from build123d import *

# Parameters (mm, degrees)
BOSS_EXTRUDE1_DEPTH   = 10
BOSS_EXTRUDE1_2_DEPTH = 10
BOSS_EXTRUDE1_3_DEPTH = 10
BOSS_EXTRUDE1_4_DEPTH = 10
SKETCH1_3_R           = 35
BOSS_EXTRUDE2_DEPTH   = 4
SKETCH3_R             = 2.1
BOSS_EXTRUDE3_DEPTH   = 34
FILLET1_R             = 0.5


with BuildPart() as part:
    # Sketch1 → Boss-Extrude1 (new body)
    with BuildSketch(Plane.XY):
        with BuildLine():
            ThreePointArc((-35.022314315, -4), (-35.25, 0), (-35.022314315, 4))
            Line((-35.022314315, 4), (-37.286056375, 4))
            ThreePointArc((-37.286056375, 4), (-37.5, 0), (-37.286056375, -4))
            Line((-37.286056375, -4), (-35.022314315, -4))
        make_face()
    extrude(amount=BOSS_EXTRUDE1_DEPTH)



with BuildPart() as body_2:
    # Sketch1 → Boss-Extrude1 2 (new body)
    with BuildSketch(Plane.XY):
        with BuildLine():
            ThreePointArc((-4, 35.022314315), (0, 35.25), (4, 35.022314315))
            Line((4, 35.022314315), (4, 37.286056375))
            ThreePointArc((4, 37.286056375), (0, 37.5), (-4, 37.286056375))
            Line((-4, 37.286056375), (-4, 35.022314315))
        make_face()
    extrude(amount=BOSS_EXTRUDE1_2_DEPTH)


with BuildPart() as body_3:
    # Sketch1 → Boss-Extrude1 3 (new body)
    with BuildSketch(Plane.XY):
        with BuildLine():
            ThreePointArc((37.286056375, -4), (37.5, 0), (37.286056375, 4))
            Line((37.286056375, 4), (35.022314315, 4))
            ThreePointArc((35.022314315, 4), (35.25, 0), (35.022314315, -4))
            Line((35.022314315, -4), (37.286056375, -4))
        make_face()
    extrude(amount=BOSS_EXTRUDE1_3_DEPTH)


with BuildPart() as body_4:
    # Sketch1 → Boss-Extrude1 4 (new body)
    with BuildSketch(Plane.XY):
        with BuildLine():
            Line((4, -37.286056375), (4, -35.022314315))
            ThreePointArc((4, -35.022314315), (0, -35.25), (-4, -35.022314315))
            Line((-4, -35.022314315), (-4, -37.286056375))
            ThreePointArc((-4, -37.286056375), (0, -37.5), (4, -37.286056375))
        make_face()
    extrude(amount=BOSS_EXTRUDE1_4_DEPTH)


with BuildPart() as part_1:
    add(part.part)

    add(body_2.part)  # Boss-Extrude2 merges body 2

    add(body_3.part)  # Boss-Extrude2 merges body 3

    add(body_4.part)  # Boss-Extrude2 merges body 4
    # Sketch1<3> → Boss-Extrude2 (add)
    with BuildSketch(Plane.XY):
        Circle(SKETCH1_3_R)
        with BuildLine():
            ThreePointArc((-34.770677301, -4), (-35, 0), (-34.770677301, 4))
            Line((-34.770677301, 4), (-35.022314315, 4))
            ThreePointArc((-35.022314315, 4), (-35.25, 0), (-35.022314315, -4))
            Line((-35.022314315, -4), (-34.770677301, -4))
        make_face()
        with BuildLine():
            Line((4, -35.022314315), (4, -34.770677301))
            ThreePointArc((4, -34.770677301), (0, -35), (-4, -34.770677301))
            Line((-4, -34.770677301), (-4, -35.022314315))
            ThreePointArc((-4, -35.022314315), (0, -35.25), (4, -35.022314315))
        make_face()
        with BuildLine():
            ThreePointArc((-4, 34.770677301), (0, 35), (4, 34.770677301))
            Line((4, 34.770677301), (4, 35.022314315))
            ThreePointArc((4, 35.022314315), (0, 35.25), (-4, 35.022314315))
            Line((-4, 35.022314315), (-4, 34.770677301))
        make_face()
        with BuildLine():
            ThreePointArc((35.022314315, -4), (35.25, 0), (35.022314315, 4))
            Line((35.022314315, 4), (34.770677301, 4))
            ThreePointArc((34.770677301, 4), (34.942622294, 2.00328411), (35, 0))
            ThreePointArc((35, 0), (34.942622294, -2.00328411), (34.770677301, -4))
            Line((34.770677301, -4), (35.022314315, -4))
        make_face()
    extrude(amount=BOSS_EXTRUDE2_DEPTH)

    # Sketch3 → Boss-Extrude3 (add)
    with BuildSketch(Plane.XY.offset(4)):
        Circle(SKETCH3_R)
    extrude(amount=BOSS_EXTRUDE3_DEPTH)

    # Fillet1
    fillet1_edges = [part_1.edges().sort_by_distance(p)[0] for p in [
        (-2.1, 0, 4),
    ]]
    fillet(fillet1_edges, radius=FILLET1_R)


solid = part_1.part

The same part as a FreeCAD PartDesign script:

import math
import FreeCAD as App
import Part
import Sketcher
Q = App.Units.Quantity


def edges_at(feature, points):
    """Names of the edges that pass closest to the given points."""
    edges = feature.Shape.Edges
    near = lambda p: min(range(len(edges)), key=lambda i: edges[i].distToShape(Part.Vertex(*p))[0])
    return sorted({f"Edge{near(p) + 1}" for p in points})

doc = App.newDocument("Part")
body = doc.addObject("PartDesign::Body", "Body")

# Sketch on XY plane
sketch1 = doc.addObject("Sketcher::SketchObject", "Sketch")
body.addObject(sketch1)
sketch1.AttachmentSupport = (doc.XY_Plane, [""])
sketch1.MapMode = "FlatFace"
sketch1.addGeometry(Part.ArcOfCircle(Part.Circle(App.Vector(0, 0, 0), App.Vector(0, 0, 1), 35.2), math.radians(173.48), math.radians(186.52)), False)
sketch1.addGeometry(Part.LineSegment(App.Vector(-35, 4, 0), App.Vector(-37.3, 4, 0)), False)
sketch1.addGeometry(Part.ArcOfCircle(Part.Circle(App.Vector(0, 0, 0), App.Vector(0, 0, 1), 37.5), math.radians(173.88), math.radians(186.12)), False)
sketch1.addGeometry(Part.LineSegment(App.Vector(-37.3, -4, 0), App.Vector(-35, -4, 0)), False)
sketch1.addConstraint(Sketcher.Constraint("Coincident", 0, 1, 1, 1))
sketch1.addConstraint(Sketcher.Constraint("Coincident", 1, 2, 2, 1))
sketch1.addConstraint(Sketcher.Constraint("Coincident", 2, 2, 3, 1))
sketch1.addConstraint(Sketcher.Constraint("Coincident", 3, 2, 0, 2))
sketch1.addConstraint(Sketcher.Constraint("Horizontal", 1))
sketch1.addConstraint(Sketcher.Constraint("Horizontal", 3))
sketch1.addConstraint(Sketcher.Constraint("Coincident", 0, 3, -1, 1))
sketch1.addConstraint(Sketcher.Constraint("Coincident", 2, 3, -1, 1))
sketch1.addConstraint(Sketcher.Constraint("Vertical", 1, 2, 2, 2))
sketch1.addConstraint(Sketcher.Constraint("Radius", 2, Q("37.5 mm")))
sketch1.addConstraint(Sketcher.Constraint("Radius", 0, Q("35.25 mm")))
sketch1.addConstraint(Sketcher.Constraint("DistanceY", -1, 1, 0, 1, Q("4 mm")))
pad1 = doc.addObject("PartDesign::Pad", "Pad")
body.addObject(pad1)
pad1.Profile = sketch1
pad1.Length = 10
body2 = doc.addObject("PartDesign::Body", "Body001")

# Sketch on XY plane
sketch2 = doc.addObject("Sketcher::SketchObject", "Sketch001")
body2.addObject(sketch2)
sketch2.AttachmentSupport = (doc.getObject("XY_Plane001"), [""])
sketch2.MapMode = "FlatFace"
sketch2.addGeometry(Part.ArcOfCircle(Part.Circle(App.Vector(0, 0, 0), App.Vector(0, 0, 1), 35.2), math.radians(83.48), math.radians(96.52)), False)
sketch2.addGeometry(Part.LineSegment(App.Vector(4, 35, 0), App.Vector(4, 37.3, 0)), False)
sketch2.addGeometry(Part.ArcOfCircle(Part.Circle(App.Vector(0, 0, 0), App.Vector(0, 0, 1), 37.5), math.radians(83.88), math.radians(96.12)), False)
sketch2.addGeometry(Part.LineSegment(App.Vector(-4, 37.3, 0), App.Vector(-4, 35, 0)), False)
sketch2.addConstraint(Sketcher.Constraint("Coincident", 0, 1, 1, 1))
sketch2.addConstraint(Sketcher.Constraint("Coincident", 1, 2, 2, 1))
sketch2.addConstraint(Sketcher.Constraint("Coincident", 2, 2, 3, 1))
sketch2.addConstraint(Sketcher.Constraint("Coincident", 3, 2, 0, 2))
sketch2.addConstraint(Sketcher.Constraint("Vertical", 1))
sketch2.addConstraint(Sketcher.Constraint("Vertical", 3))
sketch2.addConstraint(Sketcher.Constraint("Coincident", 0, 3, -1, 1))
sketch2.addConstraint(Sketcher.Constraint("Coincident", 2, 3, -1, 1))
sketch2.addConstraint(Sketcher.Constraint("Horizontal", 1, 2, 2, 2))
sketch2.addConstraint(Sketcher.Constraint("Radius", 2, Q("37.5 mm")))
sketch2.addConstraint(Sketcher.Constraint("Radius", 0, Q("35.25 mm")))
sketch2.addConstraint(Sketcher.Constraint("DistanceX", -1, 1, 0, 1, Q("4 mm")))
pad2 = doc.addObject("PartDesign::Pad", "Pad001")
body2.addObject(pad2)
pad2.Profile = sketch2
pad2.Length = 10
body3 = doc.addObject("PartDesign::Body", "Body002")

# Sketch on XY plane
sketch3 = doc.addObject("Sketcher::SketchObject", "Sketch002")
body3.addObject(sketch3)
sketch3.AttachmentSupport = (doc.getObject("XY_Plane002"), [""])
sketch3.MapMode = "FlatFace"
sketch3.addGeometry(Part.ArcOfCircle(Part.Circle(App.Vector(0, 0, 0), App.Vector(0, 0, 1), 37.5), math.radians(-6.12), math.radians(6.12)), False)
sketch3.addGeometry(Part.LineSegment(App.Vector(37.3, 4, 0), App.Vector(35, 4, 0)), False)
sketch3.addGeometry(Part.ArcOfCircle(Part.Circle(App.Vector(0, 0, 0), App.Vector(0, 0, 1), 35.2), math.radians(-6.52), math.radians(6.52)), False)
sketch3.addGeometry(Part.LineSegment(App.Vector(35, -4, 0), App.Vector(37.3, -4, 0)), False)
sketch3.addConstraint(Sketcher.Constraint("Coincident", 0, 2, 1, 1))
sketch3.addConstraint(Sketcher.Constraint("Coincident", 1, 2, 2, 2))
sketch3.addConstraint(Sketcher.Constraint("Coincident", 2, 1, 3, 1))
sketch3.addConstraint(Sketcher.Constraint("Coincident", 3, 2, 0, 1))
sketch3.addConstraint(Sketcher.Constraint("Horizontal", 1))
sketch3.addConstraint(Sketcher.Constraint("Horizontal", 3))
sketch3.addConstraint(Sketcher.Constraint("Coincident", 0, 3, -1, 1))
sketch3.addConstraint(Sketcher.Constraint("Coincident", 2, 3, -1, 1))
sketch3.addConstraint(Sketcher.Constraint("Vertical", 1, 2, 2, 1))
sketch3.addConstraint(Sketcher.Constraint("Radius", 0, Q("37.5 mm")))
sketch3.addConstraint(Sketcher.Constraint("Radius", 2, Q("35.25 mm")))
sketch3.addConstraint(Sketcher.Constraint("DistanceY", -1, 1, 0, 2, Q("4 mm")))
pad3 = doc.addObject("PartDesign::Pad", "Pad002")
body3.addObject(pad3)
pad3.Profile = sketch3
pad3.Length = 10
body4 = doc.addObject("PartDesign::Body", "Body003")

# Sketch on XY plane
sketch4 = doc.addObject("Sketcher::SketchObject", "Sketch003")
body4.addObject(sketch4)
sketch4.AttachmentSupport = (doc.getObject("XY_Plane003"), [""])
sketch4.MapMode = "FlatFace"
sketch4.addGeometry(Part.LineSegment(App.Vector(4, -37.3, 0), App.Vector(4, -35, 0)), False)
sketch4.addGeometry(Part.ArcOfCircle(Part.Circle(App.Vector(0, 0, 0), App.Vector(0, 0, 1), 35.2), math.radians(-96.52), math.radians(-83.48)), False)
sketch4.addGeometry(Part.LineSegment(App.Vector(-4, -35, 0), App.Vector(-4, -37.3, 0)), False)
sketch4.addGeometry(Part.ArcOfCircle(Part.Circle(App.Vector(0, 0, 0), App.Vector(0, 0, 1), 37.5), math.radians(-96.12), math.radians(-83.88)), False)
sketch4.addConstraint(Sketcher.Constraint("Coincident", 0, 2, 1, 2))
sketch4.addConstraint(Sketcher.Constraint("Coincident", 1, 1, 2, 1))
sketch4.addConstraint(Sketcher.Constraint("Coincident", 2, 2, 3, 1))
sketch4.addConstraint(Sketcher.Constraint("Coincident", 3, 2, 0, 1))
sketch4.addConstraint(Sketcher.Constraint("Vertical", 0))
sketch4.addConstraint(Sketcher.Constraint("Vertical", 2))
sketch4.addConstraint(Sketcher.Constraint("Coincident", 1, 3, -1, 1))
sketch4.addConstraint(Sketcher.Constraint("Coincident", 3, 3, -1, 1))
sketch4.addConstraint(Sketcher.Constraint("Horizontal", 0, 2, 1, 1))
sketch4.addConstraint(Sketcher.Constraint("Radius", 3, Q("37.5 mm")))
sketch4.addConstraint(Sketcher.Constraint("Radius", 1, Q("35.25 mm")))
sketch4.addConstraint(Sketcher.Constraint("DistanceX", -1, 1, 0, 2, Q("4 mm")))
pad4 = doc.addObject("PartDesign::Pad", "Pad003")
body4.addObject(pad4)
pad4.Profile = sketch4
pad4.Length = 10
body.AllowCompound = True
doc.recompute()

boolean = doc.addObject("PartDesign::Boolean", "Boolean")
body.addObject(boolean)
boolean.Type = "Fuse"
boolean.addObjects([body2])
doc.recompute()

boolean2 = doc.addObject("PartDesign::Boolean", "Boolean001")
body.addObject(boolean2)
boolean2.Type = "Fuse"
boolean2.addObjects([body3])
doc.recompute()

boolean3 = doc.addObject("PartDesign::Boolean", "Boolean002")
body.addObject(boolean3)
boolean3.Type = "Fuse"
boolean3.addObjects([body4])

# Sketch on XY plane
sketch5 = doc.addObject("Sketcher::SketchObject", "Sketch004")
body.addObject(sketch5)
sketch5.AttachmentSupport = (doc.XY_Plane, [""])
sketch5.MapMode = "FlatFace"
sketch5.addGeometry(Part.LineSegment(App.Vector(-34.77, 4, 0), App.Vector(-35.02, 4, 0)), False)
sketch5.addGeometry(Part.ArcOfCircle(Part.Circle(App.Vector(0, 0, 0), App.Vector(0, 0, 1), 35.25), math.radians(173.48), math.radians(186.52)), False)
sketch5.addGeometry(Part.LineSegment(App.Vector(-35.02, -4, 0), App.Vector(-34.77, -4, 0)), False)
sketch5.addGeometry(Part.ArcOfCircle(Part.Circle(App.Vector(0, 0, 0), App.Vector(0, 0, 1), 35), math.radians(-173), math.radians(-97)), False)
sketch5.addGeometry(Part.LineSegment(App.Vector(-4, -34.77, 0), App.Vector(-4, -35.02, 0)), False)
sketch5.addGeometry(Part.ArcOfCircle(Part.Circle(App.Vector(0, 0, 0), App.Vector(0, 0, 1), 35.25), math.radians(-96.52), math.radians(-83.48)), False)
sketch5.addGeometry(Part.LineSegment(App.Vector(4, -35.02, 0), App.Vector(4, -34.77, 0)), False)
sketch5.addGeometry(Part.ArcOfCircle(Part.Circle(App.Vector(0, 0, 0), App.Vector(0, 0, 1), 35), math.radians(-83), math.radians(-7)), False)
sketch5.addGeometry(Part.LineSegment(App.Vector(34.77, -4, 0), App.Vector(35.02, -4, 0)), False)
sketch5.addGeometry(Part.ArcOfCircle(Part.Circle(App.Vector(0, 0, 0), App.Vector(0, 0, 1), 35.25), math.radians(-6.52), math.radians(6.52)), False)
sketch5.addGeometry(Part.LineSegment(App.Vector(35.02, 4, 0), App.Vector(34.77, 4, 0)), False)
sketch5.addGeometry(Part.ArcOfCircle(Part.Circle(App.Vector(0, 0, 0), App.Vector(0, 0, 1), 35), math.radians(7), math.radians(83)), False)
sketch5.addGeometry(Part.LineSegment(App.Vector(4, 34.77, 0), App.Vector(4, 35.02, 0)), False)
sketch5.addGeometry(Part.ArcOfCircle(Part.Circle(App.Vector(0, 0, 0), App.Vector(0, 0, 1), 35.25), math.radians(83.48), math.radians(96.52)), False)
sketch5.addGeometry(Part.LineSegment(App.Vector(-4, 35.02, 0), App.Vector(-4, 34.77, 0)), False)
sketch5.addGeometry(Part.ArcOfCircle(Part.Circle(App.Vector(0, 0, 0), App.Vector(0, 0, 1), 35), math.radians(97), math.radians(173)), False)
sketch5.addConstraint(Sketcher.Constraint("Coincident", 0, 2, 1, 1))
sketch5.addConstraint(Sketcher.Constraint("Coincident", 1, 2, 2, 1))
sketch5.addConstraint(Sketcher.Constraint("Coincident", 2, 2, 3, 1))
sketch5.addConstraint(Sketcher.Constraint("Coincident", 3, 2, 4, 1))
sketch5.addConstraint(Sketcher.Constraint("Coincident", 4, 2, 5, 1))
sketch5.addConstraint(Sketcher.Constraint("Coincident", 5, 2, 6, 1))
sketch5.addConstraint(Sketcher.Constraint("Coincident", 6, 2, 7, 1))
sketch5.addConstraint(Sketcher.Constraint("Coincident", 7, 2, 8, 1))
sketch5.addConstraint(Sketcher.Constraint("Coincident", 8, 2, 9, 1))
sketch5.addConstraint(Sketcher.Constraint("Coincident", 9, 2, 10, 1))
sketch5.addConstraint(Sketcher.Constraint("Coincident", 10, 2, 11, 1))
sketch5.addConstraint(Sketcher.Constraint("Coincident", 11, 2, 12, 1))
sketch5.addConstraint(Sketcher.Constraint("Coincident", 12, 2, 13, 1))
sketch5.addConstraint(Sketcher.Constraint("Coincident", 13, 2, 14, 1))
sketch5.addConstraint(Sketcher.Constraint("Coincident", 14, 2, 15, 1))
sketch5.addConstraint(Sketcher.Constraint("Coincident", 15, 2, 0, 1))
sketch5.addConstraint(Sketcher.Constraint("Horizontal", 0))
sketch5.addConstraint(Sketcher.Constraint("Horizontal", 2))
sketch5.addConstraint(Sketcher.Constraint("Vertical", 4))
sketch5.addConstraint(Sketcher.Constraint("Vertical", 6))
sketch5.addConstraint(Sketcher.Constraint("Horizontal", 8))
sketch5.addConstraint(Sketcher.Constraint("Horizontal", 10))
sketch5.addConstraint(Sketcher.Constraint("Vertical", 12))
sketch5.addConstraint(Sketcher.Constraint("Vertical", 14))
sketch5.addConstraint(Sketcher.Constraint("Coincident", 1, 3, -1, 1))
sketch5.addConstraint(Sketcher.Constraint("Coincident", 3, 3, -1, 1))
sketch5.addConstraint(Sketcher.Constraint("Coincident", 5, 3, -1, 1))
sketch5.addConstraint(Sketcher.Constraint("Coincident", 7, 3, -1, 1))
sketch5.addConstraint(Sketcher.Constraint("Coincident", 9, 3, -1, 1))
sketch5.addConstraint(Sketcher.Constraint("Coincident", 11, 3, -1, 1))
sketch5.addConstraint(Sketcher.Constraint("Coincident", 13, 3, -1, 1))
sketch5.addConstraint(Sketcher.Constraint("Coincident", 15, 3, -1, 1))
sketch5.addConstraint(Sketcher.Constraint("Equal", 1, 5))
sketch5.addConstraint(Sketcher.Constraint("Equal", 3, 7))
sketch5.addConstraint(Sketcher.Constraint("Equal", 5, 9))
sketch5.addConstraint(Sketcher.Constraint("Equal", 7, 11))
sketch5.addConstraint(Sketcher.Constraint("Equal", 9, 13))
sketch5.addConstraint(Sketcher.Constraint("Equal", 11, 15))
sketch5.addConstraint(Sketcher.Constraint("Horizontal", 4, 2, 5, 2))
sketch5.addConstraint(Sketcher.Constraint("Horizontal", 2, 2, 7, 2))
sketch5.addConstraint(Sketcher.Constraint("Horizontal", 0, 2, 9, 2))
sketch5.addConstraint(Sketcher.Constraint("Horizontal", 12, 2, 13, 2))
sketch5.addConstraint(Sketcher.Constraint("Vertical", 0, 2, 1, 2))
sketch5.addConstraint(Sketcher.Constraint("Vertical", 6, 2, 11, 2))
sketch5.addConstraint(Sketcher.Constraint("Radius", 3, Q("35 mm")))
sketch5.addConstraint(Sketcher.Constraint("Radius", 1, Q("35.25 mm")))
sketch5.addConstraint(Sketcher.Constraint("DistanceY", -1, 1, 0, 2, Q("4 mm")))
sketch5.addConstraint(Sketcher.Constraint("DistanceX", 3, 2, -1, 1, Q("4 mm")))
pad5 = doc.addObject("PartDesign::Pad", "Pad004")
body.addObject(pad5)
pad5.Profile = sketch5
pad5.Length = 4

# Sketch on XY plane
sketch6 = doc.addObject("Sketcher::SketchObject", "Sketch005")
body.addObject(sketch6)
sketch6.AttachmentSupport = (doc.XY_Plane, [""])
sketch6.MapMode = "FlatFace"
sketch6.AttachmentOffset = App.Placement(App.Vector(0, 0, 4), App.Rotation())
sketch6.addGeometry(Part.Circle(App.Vector(0, 0, 0), App.Vector(0, 0, 1), 2.1), False)
sketch6.addConstraint(Sketcher.Constraint("Coincident", 0, 3, -1, 1))
sketch6.addConstraint(Sketcher.Constraint("Diameter", 0, Q("4.2 mm")))
pad6 = doc.addObject("PartDesign::Pad", "Pad005")
body.addObject(pad6)
pad6.Profile = sketch6
pad6.Length = 34
doc.recompute()

fillet = doc.addObject("PartDesign::Fillet", "Fillet")
body.addObject(fillet)
fillet.Base = (pad6, edges_at(pad6, [(-2.1, 0, 4)]))
fillet.Radius = 0.5

doc.recompute()
